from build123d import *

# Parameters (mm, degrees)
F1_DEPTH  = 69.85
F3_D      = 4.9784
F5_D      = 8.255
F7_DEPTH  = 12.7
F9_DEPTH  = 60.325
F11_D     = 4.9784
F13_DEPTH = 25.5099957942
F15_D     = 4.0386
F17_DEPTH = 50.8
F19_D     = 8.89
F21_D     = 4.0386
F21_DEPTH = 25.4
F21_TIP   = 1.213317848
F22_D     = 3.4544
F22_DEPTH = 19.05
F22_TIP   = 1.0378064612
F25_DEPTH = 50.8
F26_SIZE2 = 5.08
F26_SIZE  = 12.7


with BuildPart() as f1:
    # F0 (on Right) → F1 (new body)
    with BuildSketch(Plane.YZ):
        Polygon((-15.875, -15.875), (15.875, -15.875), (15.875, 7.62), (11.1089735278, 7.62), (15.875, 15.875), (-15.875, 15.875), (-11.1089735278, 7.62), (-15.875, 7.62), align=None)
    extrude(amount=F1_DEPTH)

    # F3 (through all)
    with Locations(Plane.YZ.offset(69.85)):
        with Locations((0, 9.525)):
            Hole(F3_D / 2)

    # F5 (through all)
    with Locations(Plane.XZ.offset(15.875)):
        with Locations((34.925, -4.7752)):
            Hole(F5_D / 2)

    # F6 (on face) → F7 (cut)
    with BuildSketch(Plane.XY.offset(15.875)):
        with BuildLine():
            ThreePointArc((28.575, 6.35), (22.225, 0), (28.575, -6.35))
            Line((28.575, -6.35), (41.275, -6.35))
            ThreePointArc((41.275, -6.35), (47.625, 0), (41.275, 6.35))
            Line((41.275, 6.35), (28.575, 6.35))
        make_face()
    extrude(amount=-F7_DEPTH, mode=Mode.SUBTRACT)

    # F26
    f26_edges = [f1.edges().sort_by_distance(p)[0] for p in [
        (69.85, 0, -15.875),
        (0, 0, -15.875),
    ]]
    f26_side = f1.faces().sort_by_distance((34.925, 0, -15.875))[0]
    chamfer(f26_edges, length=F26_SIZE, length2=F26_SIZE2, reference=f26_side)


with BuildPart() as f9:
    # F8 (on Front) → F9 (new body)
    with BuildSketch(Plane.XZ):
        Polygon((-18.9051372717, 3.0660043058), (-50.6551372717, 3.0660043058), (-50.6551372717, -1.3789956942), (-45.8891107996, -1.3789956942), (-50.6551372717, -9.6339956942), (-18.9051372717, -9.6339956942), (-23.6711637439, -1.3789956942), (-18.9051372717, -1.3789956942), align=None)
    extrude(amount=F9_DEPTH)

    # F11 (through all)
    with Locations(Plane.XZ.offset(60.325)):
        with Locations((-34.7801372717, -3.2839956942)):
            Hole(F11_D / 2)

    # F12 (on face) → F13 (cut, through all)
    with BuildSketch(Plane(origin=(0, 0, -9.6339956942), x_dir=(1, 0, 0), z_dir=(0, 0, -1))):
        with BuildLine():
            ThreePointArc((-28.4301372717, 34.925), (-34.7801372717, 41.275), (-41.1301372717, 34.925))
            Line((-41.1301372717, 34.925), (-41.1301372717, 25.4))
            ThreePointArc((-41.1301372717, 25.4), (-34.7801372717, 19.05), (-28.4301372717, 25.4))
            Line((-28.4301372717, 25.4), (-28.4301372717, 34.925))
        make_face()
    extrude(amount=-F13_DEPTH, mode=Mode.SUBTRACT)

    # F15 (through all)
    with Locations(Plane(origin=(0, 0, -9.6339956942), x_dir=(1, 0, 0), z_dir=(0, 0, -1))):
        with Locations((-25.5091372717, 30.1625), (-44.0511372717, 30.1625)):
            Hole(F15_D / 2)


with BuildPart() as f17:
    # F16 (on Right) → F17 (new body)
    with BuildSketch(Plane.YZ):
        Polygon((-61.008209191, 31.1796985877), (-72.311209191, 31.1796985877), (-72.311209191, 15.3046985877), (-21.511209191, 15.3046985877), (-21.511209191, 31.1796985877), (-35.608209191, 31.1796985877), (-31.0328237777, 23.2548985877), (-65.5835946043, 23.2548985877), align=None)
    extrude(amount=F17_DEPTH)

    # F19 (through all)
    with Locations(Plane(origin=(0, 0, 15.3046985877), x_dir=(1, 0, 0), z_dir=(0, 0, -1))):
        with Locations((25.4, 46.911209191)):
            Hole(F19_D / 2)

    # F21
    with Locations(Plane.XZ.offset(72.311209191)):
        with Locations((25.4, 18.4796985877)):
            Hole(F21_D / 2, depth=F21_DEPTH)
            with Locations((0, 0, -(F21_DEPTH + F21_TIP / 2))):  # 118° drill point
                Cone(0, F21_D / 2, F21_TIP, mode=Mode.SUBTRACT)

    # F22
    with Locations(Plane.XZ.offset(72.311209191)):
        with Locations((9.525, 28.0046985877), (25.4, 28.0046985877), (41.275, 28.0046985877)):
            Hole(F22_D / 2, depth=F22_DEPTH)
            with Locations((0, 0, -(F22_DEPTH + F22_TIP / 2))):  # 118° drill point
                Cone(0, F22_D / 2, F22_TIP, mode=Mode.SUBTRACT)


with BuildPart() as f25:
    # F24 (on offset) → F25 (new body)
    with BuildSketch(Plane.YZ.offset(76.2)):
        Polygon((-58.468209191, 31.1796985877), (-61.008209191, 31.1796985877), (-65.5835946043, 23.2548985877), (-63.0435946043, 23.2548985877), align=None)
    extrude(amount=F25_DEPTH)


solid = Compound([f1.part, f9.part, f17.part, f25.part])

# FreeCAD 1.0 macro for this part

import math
import FreeCAD as App
import Part
import Sketcher
Q = App.Units.Quantity


def edges_at(feature, points):
    """Names of the edges that pass closest to the given points."""
    edges = feature.Shape.Edges
    near = lambda p: min(range(len(edges)), key=lambda i: edges[i].distToShape(Part.Vertex(*p))[0])
    return sorted({f"Edge{near(p) + 1}" for p in points})


def add_polygon(sketch, points):
    """Adds a closed chain of lines whose ends are joined by coincident constraints."""
    first, n = sketch.GeometryCount, len(points)
    for a, b in zip(points, points[1:] + points[:1]):
        sketch.addGeometry(Part.LineSegment(App.Vector(*a, 0), App.Vector(*b, 0)), False)
    for i in range(n):
        sketch.addConstraint(Sketcher.Constraint("Coincident", first + i, 2, first + (i + 1) % n, 1))

doc = App.newDocument("Part")
params = doc.addObject("Spreadsheet::Sheet", "Params")
for row, (alias, value) in enumerate([
    ("sketch1_width", "1.25 in"),
    ("sketch1_height", "0.925 in"),
    ("pad1_length", "2.75 in"),
    ("sketch2_diameter", "0.196 in"),
    ("hole_diameter", "0.196 in"),
    ("sketch3_diameter", "0.325 in"),
    ("hole2_diameter", "0.325 in"),
    ("sketch4_radius", "0.25 in"),
    ("sketch4_width", "0.5 in"),
    ("pocket1_length", "0.5 in"),
    ("chamfer_size", "0.5 in"),
    ("chamfer_size2", "0.2 in"),
    ("sketch5_width", "1.25 in"),
    ("sketch5_height", "0.175 in"),
    ("pad2_length", "2.375 in"),
    ("sketch6_diameter", "0.196 in"),
    ("hole3_diameter", "0.196 in"),
    ("sketch7_radius", "0.25 in"),
    ("sketch7_height", "0.375 in"),
    ("sketch8_diameter", "0.159 in"),
    ("hole4_diameter", "0.159 in"),
    ("sketch9_width", "2 in"),
    ("sketch9_width2", "0.445 in"),
    ("sketch9_height", "0.625 in"),
    ("pad3_length", "2 in"),
    ("sketch10_diameter", "0.35 in"),
    ("hole5_diameter", "0.35 in"),
    ("sketch11_diameter", "0.159 in"),
    ("hole6_diameter", "0.159 in"),
    ("hole6_depth", "1 in"),
    ("sketch12_diameter", "0.136 in"),
    ("hole7_diameter", "0.136 in"),
    ("hole7_depth", "0.75 in"),
    ("sketch13_width", "0.1 in"),
    ("pad4_length", "2 in"),
], start=1):
    params.set(f"A{row}", alias)
    params.set(f"B{row}", "=" + value)
    params.setAlias(f"B{row}", alias)

body = doc.addObject("PartDesign::Body", "Body")

# Sketch on YZ plane
sketch1 = doc.addObject("Sketcher::SketchObject", "Sketch")
body.addObject(sketch1)
sketch1.AttachmentSupport = (doc.YZ_Plane, [""])
sketch1.MapMode = "FlatFace"
add_polygon(sketch1, [(-15.9, -15.9), (15.9, -15.9), (15.9, 7.6), (11.1, 7.6), (15.9, 15.9), (-15.9, 15.9), (-11.1, 7.6), (-15.9, 7.6)])  # lines 0-7
sketch1.addConstraint(Sketcher.Constraint("Horizontal", 0))
sketch1.addConstraint(Sketcher.Constraint("Vertical", 1))
sketch1.addConstraint(Sketcher.Constraint("Horizontal", 2))
sketch1.addConstraint(Sketcher.Constraint("Horizontal", 4))
sketch1.addConstraint(Sketcher.Constraint("Horizontal", 6))
sketch1.addConstraint(Sketcher.Constraint("Vertical", 7))
sketch1.addConstraint(Sketcher.Constraint("Symmetric", 0, 2, 4, 2, -1, 1))
sketch1.addConstraint(Sketcher.Constraint("Symmetric", 2, 2, 5, 2, -2))
sketch1.addConstraint(Sketcher.Constraint("Vertical", 1, 2, 3, 2))
sketch1.addConstraint(Sketcher.Constraint("Vertical", 4, 2, 6, 2))
sketch1.addConstraint(Sketcher.Constraint("Angle", 3, Q("60 deg")))
sketch1.addConstraint(Sketcher.Constraint("DistanceX", 0, 1, 0, 2, Q("1.25 in")))
sketch1.addConstraint(Sketcher.Constraint("DistanceY", -1, 1, 1, 2, Q("0.3 in")))
sketch1.addConstraint(Sketcher.Constraint("DistanceY", 1, 1, 1, 2, Q("0.925 in")))
sketch1.setExpression("Constraints[19]", "Params.sketch1_width")
sketch1.setExpression("Constraints[21]", "Params.sketch1_height")
pad1 = doc.addObject("PartDesign::Pad", "Pad")
body.addObject(pad1)
pad1.Profile = sketch1
pad1.setExpression("Length", "Params.pad1_length")

# Sketch on YZ plane
sketch2 = doc.addObject("Sketcher::SketchObject", "Sketch001")
body.addObject(sketch2)
sketch2.AttachmentSupport = (doc.YZ_Plane, [""])
sketch2.MapMode = "FlatFace"
sketch2.AttachmentOffset = App.Placement(App.Vector(0, 0, 2.75 * 25.4), App.Rotation())
sketch2.addGeometry(Part.Circle(App.Vector(0, 9.5, 0), App.Vector(0, 0, 1), 2.5), False)
sketch2.addConstraint(Sketcher.Constraint("PointOnObject", 0, 3, -2))
sketch2.addConstraint(Sketcher.Constraint("Diameter", 0, Q("0.196 in")))
sketch2.addConstraint(Sketcher.Constraint("DistanceY", -1, 1, 0, 3, Q("0.375 in")))
sketch2.setExpression("Constraints[1]", "Params.sketch2_diameter")
doc.recompute()
hole = doc.addObject("PartDesign::Hole", "Hole")
body.addObject(hole)
hole.Profile = sketch2
hole.ThreadType = "None"
hole.setExpression("Diameter", "Params.hole_diameter")
hole.DepthType = "ThroughAll"

# Sketch on XZ plane
sketch3 = doc.addObject("Sketcher::SketchObject", "Sketch002")
body.addObject(sketch3)
sketch3.AttachmentSupport = (doc.XZ_Plane, [""])
sketch3.MapMode = "FlatFace"
sketch3.AttachmentOffset = App.Placement(App.Vector(0, 0, 0.625 * 25.4), App.Rotation())
sketch3.addGeometry(Part.Circle(App.Vector(34.9, -4.8, 0), App.Vector(0, 0, 1), 4.1), False)
sketch3.addConstraint(Sketcher.Constraint("Diameter", 0, Q("0.325 in")))
sketch3.addConstraint(Sketcher.Constraint("DistanceX", -1, 1, 0, 3, Q("1.375 in")))
sketch3.addConstraint(Sketcher.Constraint("DistanceY", 0, 3, -1, 1, Q("0.188 in")))
sketch3.setExpression("Constraints[0]", "Params.sketch3_diameter")
doc.recompute()
hole2 = doc.addObject("PartDesign::Hole", "Hole001")
body.addObject(hole2)
hole2.Profile = sketch3
hole2.ThreadType = "None"
hole2.setExpression("Diameter", "Params.hole2_diameter")
hole2.DepthType = "ThroughAll"

# Sketch on XY plane
sketch4 = doc.addObject("Sketcher::SketchObject", "Sketch003")
body.addObject(sketch4)
sketch4.AttachmentSupport = (doc.XY_Plane, [""])
sketch4.MapMode = "FlatFace"
sketch4.AttachmentOffset = App.Placement(App.Vector(0, 0, 0.625 * 25.4), App.Rotation())
sketch4.addGeometry(Part.ArcOfCircle(Part.Circle(App.Vector(29, 0, 0), App.Vector(0, 0, 1), 6), math.radians(90), math.radians(270)), False)
sketch4.addGeometry(Part.LineSegment(App.Vector(29, -6, 0), App.Vector(41, -6, 0)), False)
sketch4.addGeometry(Part.ArcOfCircle(Part.Circle(App.Vector(41, 0, 0), App.Vector(0, 0, 1), 6), math.radians(-90), math.radians(90)), False)
sketch4.addGeometry(Part.LineSegment(App.Vector(41, 6, 0), App.Vector(29, 6, 0)), False)
sketch4.addConstraint(Sketcher.Constraint("Tangent", 0, 2, 1, 1))
sketch4.addConstraint(Sketcher.Constraint("Tangent", 1, 2, 2, 1))
sketch4.addConstraint(Sketcher.Constraint("Tangent", 2, 2, 3, 1))
sketch4.addConstraint(Sketcher.Constraint("Tangent", 3, 2, 0, 1))
sketch4.addConstraint(Sketcher.Constraint("Horizontal", 1))
sketch4.addConstraint(Sketcher.Constraint("Horizontal", 3))
sketch4.addConstraint(Sketcher.Constraint("PointOnObject", 0, 3, -1))
sketch4.addConstraint(Sketcher.Constraint("Radius", 0, Q("0.25 in")))
sketch4.addConstraint(Sketcher.Constraint("DistanceX", 1, 1, 1, 2, Q("0.5 in")))
sketch4.addConstraint(Sketcher.Constraint("DistanceX", -1, 1, 0, 3, Q("1.125 in")))
sketch4.setExpression("Constraints[7]", "Params.sketch4_radius")
sketch4.setExpression("Constraints[8]", "Params.sketch4_width")
pocket1 = doc.addObject("PartDesign::Pocket", "Pocket")
body.addObject(pocket1)
pocket1.Profile = sketch4
pocket1.setExpression("Length", "Params.pocket1_length")
doc.recompute()

chamfer = doc.addObject("PartDesign::Chamfer", "Chamfer")
body.addObject(chamfer)
chamfer.Base = (pocket1, edges_at(pocket1, [(69.85, 0, -15.875), (0, 0, -15.875)]))
chamfer.ChamferType = "Two distances"
chamfer.setExpression("Size", "Params.chamfer_size")
chamfer.setExpression("Size2", "Params.chamfer_size2")
body2 = doc.addObject("PartDesign::Body", "Body001")

# Sketch on XZ plane
sketch5 = doc.addObject("Sketcher::SketchObject", "Sketch004")
body2.addObject(sketch5)
sketch5.AttachmentSupport = (doc.getObject("XZ_Plane001"), [""])
sketch5.MapMode = "FlatFace"
add_polygon(sketch5, [(-18.9, 3.1), (-50.7, 3.1), (-50.7, -1.4), (-45.9, -1.4), (-50.7, -9.6), (-18.9, -9.6), (-23.7, -1.4), (-18.9, -1.4)])  # lines 0-7
sketch5.addConstraint(Sketcher.Constraint("Horizontal", 0))
sketch5.addConstraint(Sketcher.Constraint("Vertical", 1))
sketch5.addConstraint(Sketcher.Constraint("Horizontal", 2))
sketch5.addConstraint(Sketcher.Constraint("Horizontal", 4))
sketch5.addConstraint(Sketcher.Constraint("Horizontal", 6))
sketch5.addConstraint(Sketcher.Constraint("Vertical", 7))
sketch5.addConstraint(Sketcher.Constraint("Horizontal", 2, 2, 5, 2))
sketch5.addConstraint(Sketcher.Constraint("Vertical", 1, 2, 3, 2))
sketch5.addConstraint(Sketcher.Constraint("Vertical", 4, 2, 6, 2))
sketch5.addConstraint(Sketcher.Constraint("Equal", 2, 6))
sketch5.addConstraint(Sketcher.Constraint("Angle", 3, Q("-120 deg")))
sketch5.addConstraint(Sketcher.Constraint("DistanceX", 0, 2, 0, 1, Q("1.25 in")))
sketch5.addConstraint(Sketcher.Constraint("DistanceY", 3, 2, 0, 2, Q("0.5 in")))
sketch5.addConstraint(Sketcher.Constraint("DistanceY", 1, 2, 1, 1, Q("0.175 in")))
sketch5.addConstraint(Sketcher.Constraint("DistanceX", 2, 2, -1, 1, Q("45.889111 mm")))
sketch5.addConstraint(Sketcher.Constraint("DistanceY", -1, 1, 0, 2, Q("3.066004 mm")))
sketch5.setExpression("Constraints[19]", "Params.sketch5_width")
sketch5.setExpression("Constraints[21]", "Params.sketch5_height")
pad2 = doc.addObject("PartDesign::Pad", "Pad001")
body2.addObject(pad2)
pad2.Profile = sketch5
pad2.setExpression("Length", "Params.pad2_length")

# Sketch on XZ plane
sketch6 = doc.addObject("Sketcher::SketchObject", "Sketch005")
body2.addObject(sketch6)
sketch6.AttachmentSupport = (doc.getObject("XZ_Plane001"), [""])
sketch6.MapMode = "FlatFace"
sketch6.AttachmentOffset = App.Placement(App.Vector(0, 0, 2.375 * 25.4), App.Rotation())
sketch6.addGeometry(Part.Circle(App.Vector(-34.8, -3.3, 0), App.Vector(0, 0, 1), 2.5), False)
sketch6.addConstraint(Sketcher.Constraint("Diameter", 0, Q("0.196 in")))
sketch6.addConstraint(Sketcher.Constraint("DistanceX", 0, 3, -1, 1, Q("34.780137 mm")))
sketch6.addConstraint(Sketcher.Constraint("DistanceY", 0, 3, -1, 1, Q("3.283996 mm")))
sketch6.setExpression("Constraints[0]", "Params.sketch6_diameter")
doc.recompute()
hole3 = doc.addObject("PartDesign::Hole", "Hole002")
body2.addObject(hole3)
hole3.Profile = sketch6
hole3.ThreadType = "None"
hole3.setExpression("Diameter", "Params.hole3_diameter")
hole3.DepthType = "ThroughAll"

# Sketch on XY plane
sketch7 = doc.addObject("Sketcher::SketchObject", "Sketch006")
body2.addObject(sketch7)
sketch7.AttachmentSupport = (doc.getObject("XY_Plane001"), [""])
sketch7.MapMode = "FlatFace"
sketch7.AttachmentOffset = App.Placement(App.Vector(0, 0, -9.633996), App.Rotation())
sketch7.addGeometry(Part.ArcOfCircle(Part.Circle(App.Vector(-35, -35, 0), App.Vector(0, 0, 1), 6), math.radians(180), math.radians(360)), False)
sketch7.addGeometry(Part.LineSegment(App.Vector(-41, -35, 0), App.Vector(-41, -25, 0)), False)
sketch7.addGeometry(Part.ArcOfCircle(Part.Circle(App.Vector(-35, -25, 0), App.Vector(0, 0, 1), 6), math.radians(0), math.radians(180)), False)
sketch7.addGeometry(Part.LineSegment(App.Vector(-28, -25, 0), App.Vector(-28, -35, 0)), False)
sketch7.addConstraint(Sketcher.Constraint("Tangent", 0, 1, 1, 1))
sketch7.addConstraint(Sketcher.Constraint("Tangent", 1, 2, 2, 2))
sketch7.addConstraint(Sketcher.Constraint("Tangent", 2, 1, 3, 1))
sketch7.addConstraint(Sketcher.Constraint("Tangent", 3, 2, 0, 2))
sketch7.addConstraint(Sketcher.Constraint("Vertical", 1))
sketch7.addConstraint(Sketcher.Constraint("Vertical", 3))
sketch7.addConstraint(Sketcher.Constraint("Radius", 0, Q("0.25 in")))
sketch7.addConstraint(Sketcher.Constraint("DistanceY", 2, 3, -1, 1, Q("1 in")))
sketch7.addConstraint(Sketcher.Constraint("DistanceY", 1, 1, 1, 2, Q("0.375 in")))
sketch7.addConstraint(Sketcher.Constraint("DistanceX", 0, 3, -1, 1, Q("34.780137 mm")))
sketch7.setExpression("Constraints[6]", "Params.sketch7_radius")
sketch7.setExpression("Constraints[8]", "Params.sketch7_height")
pocket2 = doc.addObject("PartDesign::Pocket", "Pocket001")
body2.addObject(pocket2)
pocket2.Profile = sketch7
pocket2.Type = "ThroughAll"
pocket2.Reversed = True

# Sketch on XY plane
sketch8 = doc.addObject("Sketcher::SketchObject", "Sketch007")
body2.addObject(sketch8)
sketch8.AttachmentSupport = (doc.getObject("XY_Plane001"), [""])
sketch8.MapMode = "FlatFace"
sketch8.AttachmentOffset = App.Placement(App.Vector(0, 0, -9.633996), App.Rotation())
sketch8.addGeometry(Part.Circle(App.Vector(-25.5, -30.2, 0), App.Vector(0, 0, 1), 2), False)
sketch8.addGeometry(Part.Circle(App.Vector(-44.1, -30.2, 0), App.Vector(0, 0, 1), 2), False)
sketch8.addConstraint(Sketcher.Constraint("Equal", 0, 1))
sketch8.addConstraint(Sketcher.Constraint("Horizontal", 0, 3, 1, 3))
sketch8.addConstraint(Sketcher.Constraint("Diameter", 0, Q("0.159 in")))
sketch8.addConstraint(Sketcher.Constraint("DistanceX", 1, 3, 0, 3, Q("0.73 in")))
sketch8.addConstraint(Sketcher.Constraint("DistanceY", 0, 3, -1, 1, Q("1.1875 in")))
sketch8.addConstraint(Sketcher.Constraint("DistanceX", 0, 3, -1, 1, Q("25.509137 mm")))
sketch8.setExpression("Constraints[2]", "Params.sketch8_diameter")
doc.recompute()
hole4 = doc.addObject("PartDesign::Hole", "Hole003")
body2.addObject(hole4)
hole4.Profile = sketch8
hole4.ThreadType = "None"
hole4.setExpression("Diameter", "Params.hole4_diameter")
hole4.DepthType = "ThroughAll"
hole4.Reversed = True
body3 = doc.addObject("PartDesign::Body", "Body002")

# Sketch on YZ plane
sketch9 = doc.addObject("Sketcher::SketchObject", "Sketch008")
body3.addObject(sketch9)
sketch9.AttachmentSupport = (doc.getObject("YZ_Plane002"), [""])
sketch9.MapMode = "FlatFace"
add_polygon(sketch9, [(-61, 31), (-72, 31), (-72, 15), (-22, 15), (-22, 31), (-36, 31), (-31, 23), (-66, 23)])  # lines 0-7
sketch9.addConstraint(Sketcher.Constraint("Horizontal", 0))
sketch9.addConstraint(Sketcher.Constraint("Vertical", 1))
sketch9.addConstraint(Sketcher.Constraint("Horizontal", 2))
sketch9.addConstraint(Sketcher.Constraint("Vertical", 3))
sketch9.addConstraint(Sketcher.Constraint("Horizontal", 4))
sketch9.addConstraint(Sketcher.Constraint("Horizontal", 6))
sketch9.addConstraint(Sketcher.Constraint("Horizontal", 0, 2, 3, 2))
sketch9.addConstraint(Sketcher.Constraint("Equal", 5, 7))
sketch9.addConstraint(Sketcher.Constraint("DistanceX", 2, 1, 2, 2, Q("2 in")))
sketch9.addConstraint(Sketcher.Constraint("Angle", 5, Q("-60 deg")))
sketch9.addConstraint(Sketcher.Constraint("DistanceX", 7, 2, 4, 2, Q("1 in")))
sketch9.addConstraint(Sketcher.Constraint("DistanceX", 0, 2, 0, 1, Q("0.445 in")))
sketch9.addConstraint(Sketcher.Constraint("DistanceY", 1, 2, 1, 1, Q("0.625 in")))
sketch9.addConstraint(Sketcher.Constraint("DistanceY", 5, 2, 4, 2, Q("0.312 in")))
sketch9.addConstraint(Sketcher.Constraint("DistanceY", -1, 1, 0, 2, Q("31.179699 mm")))
sketch9.addConstraint(Sketcher.Constraint("DistanceX", 0, 2, -1, 1, Q("72.311209 mm")))
sketch9.setExpression("Constraints[16]", "Params.sketch9_width")
sketch9.setExpression("Constraints[19]", "Params.sketch9_width2")
sketch9.setExpression("Constraints[20]", "Params.sketch9_height")
pad3 = doc.addObject("PartDesign::Pad", "Pad002")
body3.addObject(pad3)
pad3.Profile = sketch9
pad3.setExpression("Length", "Params.pad3_length")

# Sketch on XY plane
sketch10 = doc.addObject("Sketcher::SketchObject", "Sketch009")
body3.addObject(sketch10)
sketch10.AttachmentSupport = (doc.getObject("XY_Plane002"), [""])
sketch10.MapMode = "FlatFace"
sketch10.AttachmentOffset = App.Placement(App.Vector(0, 0, 15.304699), App.Rotation())
sketch10.addGeometry(Part.Circle(App.Vector(25.4, -46.9, 0), App.Vector(0, 0, 1), 4.4), False)
sketch10.addConstraint(Sketcher.Constraint("Diameter", 0, Q("0.35 in")))
sketch10.addConstraint(Sketcher.Constraint("DistanceX", -1, 1, 0, 3, Q("1 in")))
sketch10.addConstraint(Sketcher.Constraint("DistanceY", 0, 3, -1, 1, Q("46.911209 mm")))
sketch10.setExpression("Constraints[0]", "Params.sketch10_diameter")
doc.recompute()
hole5 = doc.addObject("PartDesign::Hole", "Hole004")
body3.addObject(hole5)
hole5.Profile = sketch10
hole5.ThreadType = "None"
hole5.setExpression("Diameter", "Params.hole5_diameter")
hole5.DepthType = "ThroughAll"
hole5.Reversed = True

# Sketch on XZ plane
sketch11 = doc.addObject("Sketcher::SketchObject", "Sketch010")
body3.addObject(sketch11)
sketch11.AttachmentSupport = (doc.getObject("XZ_Plane002"), [""])
sketch11.MapMode = "FlatFace"
sketch11.AttachmentOffset = App.Placement(App.Vector(0, 0, 72.311209), App.Rotation())
sketch11.addGeometry(Part.Circle(App.Vector(25.4, 18.5, 0), App.Vector(0, 0, 1), 2), False)
sketch11.addConstraint(Sketcher.Constraint("Diameter", 0, Q("0.159 in")))
sketch11.addConstraint(Sketcher.Constraint("DistanceX", -1, 1, 0, 3, Q("1 in")))
sketch11.addConstraint(Sketcher.Constraint("DistanceY", -1, 1, 0, 3, Q("18.479699 mm")))
sketch11.setExpression("Constraints[0]", "Params.sketch11_diameter")
doc.recompute()
hole6 = doc.addObject("PartDesign::Hole", "Hole005")
body3.addObject(hole6)
hole6.Profile = sketch11
hole6.ThreadType = "None"
hole6.setExpression("Diameter", "Params.hole6_diameter")
hole6.DepthType = "Dimension"
hole6.setExpression("Depth", "Params.hole6_depth")
hole6.DrillPoint = "Angled"
hole6.DrillPointAngle = 118

# Sketch on XZ plane
sketch12 = doc.addObject("Sketcher::SketchObject", "Sketch011")
body3.addObject(sketch12)
sketch12.AttachmentSupport = (doc.getObject("XZ_Plane002"), [""])
sketch12.MapMode = "FlatFace"
sketch12.AttachmentOffset = App.Placement(App.Vector(0, 0, 72.311209), App.Rotation())
sketch12.addGeometry(Part.Circle(App.Vector(9.5, 28, 0), App.Vector(0, 0, 1), 1.7), False)
sketch12.addGeometry(Part.Circle(App.Vector(25.4, 28, 0), App.Vector(0, 0, 1), 1.7), False)
sketch12.addGeometry(Part.Circle(App.Vector(41.3, 28, 0), App.Vector(0, 0, 1), 1.7), False)
sketch12.addConstraint(Sketcher.Constraint("Equal", 0, 1))
sketch12.addConstraint(Sketcher.Constraint("Equal", 1, 2))
sketch12.addConstraint(Sketcher.Constraint("Horizontal", 0, 3, 1, 3))
sketch12.addConstraint(Sketcher.Constraint("Horizontal", 1, 3, 2, 3))
sketch12.addConstraint(Sketcher.Constraint("Diameter", 0, Q("0.136 in")))
sketch12.addConstraint(Sketcher.Constraint("DistanceX", -1, 1, 1, 3, Q("1 in")))
sketch12.addConstraint(Sketcher.Constraint("DistanceX", 0, 3, 2, 3, Q("1.25 in")))
sketch12.addConstraint(Sketcher.Constraint("DistanceX", -1, 1, 0, 3, Q("0.375 in")))
sketch12.addConstraint(Sketcher.Constraint("DistanceY", -1, 1, 0, 3, Q("28.004699 mm")))
sketch12.setExpression("Constraints[4]", "Params.sketch12_diameter")
doc.recompute()
hole7 = doc.addObject("PartDesign::Hole", "Hole006")
body3.addObject(hole7)
hole7.Profile = sketch12
hole7.ThreadType = "None"
hole7.setExpression("Diameter", "Params.hole7_diameter")
hole7.DepthType = "Dimension"
hole7.setExpression("Depth", "Params.hole7_depth")
hole7.DrillPoint = "Angled"
hole7.DrillPointAngle = 118
body4 = doc.addObject("PartDesign::Body", "Body003")

# Sketch on YZ plane
sketch13 = doc.addObject("Sketcher::SketchObject", "Sketch012")
body4.addObject(sketch13)
sketch13.AttachmentSupport = (doc.getObject("YZ_Plane003"), [""])
sketch13.MapMode = "FlatFace"
sketch13.AttachmentOffset = App.Placement(App.Vector(0, 0, 3 * 25.4), App.Rotation())
add_polygon(sketch13, [(-58.5, 31.2), (-61, 31.2), (-65.6, 23.3), (-63, 23.3)])  # lines 0-3
sketch13.addConstraint(Sketcher.Constraint("Horizontal", 0))
sketch13.addConstraint(Sketcher.Constraint("Horizontal", 2))
sketch13.addConstraint(Sketcher.Constraint("Parallel", 1, 3))
sketch13.addConstraint(Sketcher.Constraint("DistanceX", 0, 2, 0, 1, Q("0.1 in")))
sketch13.addConstraint(Sketcher.Constraint("Angle", 1, Q("-120 deg")))
sketch13.addConstraint(Sketcher.Constraint("DistanceY", 1, 2, 0, 2, Q("0.312 in")))
sketch13.addConstraint(Sketcher.Constraint("DistanceY", -1, 1, 0, 2, Q("31.179699 mm")))
sketch13.addConstraint(Sketcher.Constraint("DistanceX", 0, 2, -1, 1, Q("61.008209 mm")))
sketch13.setExpression("Constraints[7]", "Params.sketch13_width")
pad4 = doc.addObject("PartDesign::Pad", "Pad003")
body4.addObject(pad4)
pad4.Profile = sketch13
pad4.setExpression("Length", "Params.pad4_length")

doc.recompute()
